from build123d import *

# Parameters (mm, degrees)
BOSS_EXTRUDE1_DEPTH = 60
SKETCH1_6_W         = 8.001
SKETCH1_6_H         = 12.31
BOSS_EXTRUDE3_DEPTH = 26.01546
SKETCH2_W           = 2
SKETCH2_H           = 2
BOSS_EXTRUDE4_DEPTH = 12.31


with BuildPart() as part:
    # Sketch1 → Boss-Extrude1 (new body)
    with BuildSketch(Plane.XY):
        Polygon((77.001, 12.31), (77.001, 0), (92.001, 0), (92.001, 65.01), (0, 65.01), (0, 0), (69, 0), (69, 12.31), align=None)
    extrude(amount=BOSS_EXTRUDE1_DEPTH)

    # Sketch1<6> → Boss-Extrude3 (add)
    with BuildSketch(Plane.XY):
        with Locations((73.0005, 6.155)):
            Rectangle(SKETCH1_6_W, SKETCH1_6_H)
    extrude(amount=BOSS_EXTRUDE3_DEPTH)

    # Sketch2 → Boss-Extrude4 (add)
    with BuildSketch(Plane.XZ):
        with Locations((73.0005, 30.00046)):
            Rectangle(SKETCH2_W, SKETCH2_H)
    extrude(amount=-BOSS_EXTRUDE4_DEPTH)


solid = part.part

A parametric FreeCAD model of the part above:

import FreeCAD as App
import Part
import Sketcher
from FreeCAD import Vector

doc = App.newDocument("Part")
body = doc.addObject("PartDesign::Body", "Body")

# Sketch on XY plane
sketch1 = body.newObject("Sketcher::SketchObject", "Sketch")
sketch1.AttachmentSupport = (doc.getObject("XY_Plane"), [""])
sketch1.MapMode = "FlatFace"
sketch1.addGeometry([
    Part.LineSegment(Vector(77, 12, 0), Vector(77, 0, 0)),  # 0
    Part.LineSegment(Vector(77, 0, 0), Vector(92, 0, 0)),  # 1
    Part.LineSegment(Vector(92, 0, 0), Vector(92, 65, 0)),  # 2
    Part.LineSegment(Vector(92, 65, 0), Vector(0, 65, 0)),  # 3
    Part.LineSegment(Vector(0, 65, 0), Vector(0, 0, 0)),  # 4
    Part.LineSegment(Vector(0, 0, 0), Vector(69, 0, 0)),  # 5
    Part.LineSegment(Vector(69, 0, 0), Vector(69, 12, 0)),  # 6
    Part.LineSegment(Vector(69, 12, 0), Vector(77, 12, 0)),  # 7
], False)
sketch1.addConstraint([
    Sketcher.Constraint("Coincident", 0, 2, 1, 1),
    Sketcher.Constraint("Coincident", 1, 2, 2, 1),
    Sketcher.Constraint("Coincident", 2, 2, 3, 1),
    Sketcher.Constraint("Coincident", 3, 2, 4, 1),
    Sketcher.Constraint("Coincident", 4, 2, 5, 1),
    Sketcher.Constraint("Coincident", 5, 2, 6, 1),
    Sketcher.Constraint("Coincident", 6, 2, 7, 1),
    Sketcher.Constraint("Coincident", 7, 2, 0, 1),
    Sketcher.Constraint("Vertical", 0),
    Sketcher.Constraint("Horizontal", 1),
    Sketcher.Constraint("Vertical", 2),
    Sketcher.Constraint("Horizontal", 3),
    Sketcher.Constraint("Vertical", 4),
    Sketcher.Constraint("Horizontal", 5),
    Sketcher.Constraint("Vertical", 6),
    Sketcher.Constraint("Horizontal", 7),
    Sketcher.Constraint("Coincident", 4, 2, -1, 1),
    Sketcher.Constraint("PointOnObject", 0, 2, -1),
    Sketcher.Constraint("DistanceX", 1, 1, 1, 2, 15.0),
    Sketcher.Constraint("DistanceX", 5, 1, 5, 2, 69.0),
    Sketcher.Constraint("DistanceY", 0, 2, 0, 1, 12.31),
    Sketcher.Constraint("DistanceY", 2, 1, 2, 2, 65.01),
    Sketcher.Constraint("DistanceX", 3, 2, 3, 1, 92.001),
])
pad1 = body.newObject("PartDesign::Pad", "Pad")
pad1.Profile = sketch1
pad1.Length = 60

# Sketch on XY plane
sketch2 = body.newObject("Sketcher::SketchObject", "Sketch001")
sketch2.AttachmentSupport = (doc.getObject("XY_Plane"), [""])
sketch2.MapMode = "FlatFace"
sketch2.addGeometry([
    Part.LineSegment(Vector(69, 12, 0), Vector(69, 0, 0)),
    Part.LineSegment(Vector(69, 0, 0), Vector(77, 0, 0)),
    Part.LineSegment(Vector(77, 0, 0), Vector(77, 12, 0)),
    Part.LineSegment(Vector(77, 12, 0), Vector(69, 12, 0)),
], False)
sketch2.addConstraint([
    Sketcher.Constraint("Coincident", 0, 2, 1, 1),
    Sketcher.Constraint("Coincident", 1, 2, 2, 1),
    Sketcher.Constraint("Coincident", 2, 2, 3, 1),
    Sketcher.Constraint("Coincident", 3, 2, 0, 1),
    Sketcher.Constraint("Vertical", 0),
    Sketcher.Constraint("Horizontal", 1),
    Sketcher.Constraint("Vertical", 2),
    Sketcher.Constraint("Horizontal", 3),
    Sketcher.Constraint("PointOnObject", 0, 2, -1),
    Sketcher.Constraint("DistanceX", -1, 1, 0, 2, 69.0),
    Sketcher.Constraint("DistanceY", 0, 2, 0, 1, 12.31),
    Sketcher.Constraint("DistanceX", 1, 1, 1, 2, 8.001),
])
pad2 = body.newObject("PartDesign::Pad", "Pad001")
pad2.Profile = sketch2
pad2.Length = 26.01546

# Sketch on XZ plane
sketch3 = body.newObject("Sketcher::SketchObject", "Sketch002")
sketch3.AttachmentSupport = (doc.getObject("XZ_Plane"), [""])
sketch3.MapMode = "FlatFace"
sketch3.addGeometry([
    Part.LineSegment(Vector(72, 31, 0), Vector(72, 29, 0)),
    Part.LineSegment(Vector(72, 29, 0), Vector(74, 29, 0)),
    Part.LineSegment(Vector(74, 29, 0), Vector(74, 31, 0)),
    Part.LineSegment(Vector(74, 31, 0), Vector(72, 31, 0)),
], False)
sketch3.addConstraint([
    Sketcher.Constraint("Coincident", 0, 2, 1, 1),
    Sketcher.Constraint("Coincident", 1, 2, 2, 1),
    Sketcher.Constraint("Coincident", 2, 2, 3, 1),
    Sketcher.Constraint("Coincident", 3, 2, 0, 1),
    Sketcher.Constraint("Vertical", 0),
    Sketcher.Constraint("Horizontal", 1),
    Sketcher.Constraint("Vertical", 2),
    Sketcher.Constraint("Horizontal", 3),
    Sketcher.Constraint("Equal", 3, 0),
    Sketcher.Constraint("DistanceX", 1, 1, 1, 2, 2.0),
    Sketcher.Constraint("DistanceX", -1, 1, 0, 2, 72.0005),
    Sketcher.Constraint("DistanceY", -1, 1, 0, 2, 29.00046),
])
pad3 = body.newObject("PartDesign::Pad", "Pad002")
pad3.Profile = sketch3
pad3.Length = 12.31
pad3.Reversed = True

doc.recompute()
